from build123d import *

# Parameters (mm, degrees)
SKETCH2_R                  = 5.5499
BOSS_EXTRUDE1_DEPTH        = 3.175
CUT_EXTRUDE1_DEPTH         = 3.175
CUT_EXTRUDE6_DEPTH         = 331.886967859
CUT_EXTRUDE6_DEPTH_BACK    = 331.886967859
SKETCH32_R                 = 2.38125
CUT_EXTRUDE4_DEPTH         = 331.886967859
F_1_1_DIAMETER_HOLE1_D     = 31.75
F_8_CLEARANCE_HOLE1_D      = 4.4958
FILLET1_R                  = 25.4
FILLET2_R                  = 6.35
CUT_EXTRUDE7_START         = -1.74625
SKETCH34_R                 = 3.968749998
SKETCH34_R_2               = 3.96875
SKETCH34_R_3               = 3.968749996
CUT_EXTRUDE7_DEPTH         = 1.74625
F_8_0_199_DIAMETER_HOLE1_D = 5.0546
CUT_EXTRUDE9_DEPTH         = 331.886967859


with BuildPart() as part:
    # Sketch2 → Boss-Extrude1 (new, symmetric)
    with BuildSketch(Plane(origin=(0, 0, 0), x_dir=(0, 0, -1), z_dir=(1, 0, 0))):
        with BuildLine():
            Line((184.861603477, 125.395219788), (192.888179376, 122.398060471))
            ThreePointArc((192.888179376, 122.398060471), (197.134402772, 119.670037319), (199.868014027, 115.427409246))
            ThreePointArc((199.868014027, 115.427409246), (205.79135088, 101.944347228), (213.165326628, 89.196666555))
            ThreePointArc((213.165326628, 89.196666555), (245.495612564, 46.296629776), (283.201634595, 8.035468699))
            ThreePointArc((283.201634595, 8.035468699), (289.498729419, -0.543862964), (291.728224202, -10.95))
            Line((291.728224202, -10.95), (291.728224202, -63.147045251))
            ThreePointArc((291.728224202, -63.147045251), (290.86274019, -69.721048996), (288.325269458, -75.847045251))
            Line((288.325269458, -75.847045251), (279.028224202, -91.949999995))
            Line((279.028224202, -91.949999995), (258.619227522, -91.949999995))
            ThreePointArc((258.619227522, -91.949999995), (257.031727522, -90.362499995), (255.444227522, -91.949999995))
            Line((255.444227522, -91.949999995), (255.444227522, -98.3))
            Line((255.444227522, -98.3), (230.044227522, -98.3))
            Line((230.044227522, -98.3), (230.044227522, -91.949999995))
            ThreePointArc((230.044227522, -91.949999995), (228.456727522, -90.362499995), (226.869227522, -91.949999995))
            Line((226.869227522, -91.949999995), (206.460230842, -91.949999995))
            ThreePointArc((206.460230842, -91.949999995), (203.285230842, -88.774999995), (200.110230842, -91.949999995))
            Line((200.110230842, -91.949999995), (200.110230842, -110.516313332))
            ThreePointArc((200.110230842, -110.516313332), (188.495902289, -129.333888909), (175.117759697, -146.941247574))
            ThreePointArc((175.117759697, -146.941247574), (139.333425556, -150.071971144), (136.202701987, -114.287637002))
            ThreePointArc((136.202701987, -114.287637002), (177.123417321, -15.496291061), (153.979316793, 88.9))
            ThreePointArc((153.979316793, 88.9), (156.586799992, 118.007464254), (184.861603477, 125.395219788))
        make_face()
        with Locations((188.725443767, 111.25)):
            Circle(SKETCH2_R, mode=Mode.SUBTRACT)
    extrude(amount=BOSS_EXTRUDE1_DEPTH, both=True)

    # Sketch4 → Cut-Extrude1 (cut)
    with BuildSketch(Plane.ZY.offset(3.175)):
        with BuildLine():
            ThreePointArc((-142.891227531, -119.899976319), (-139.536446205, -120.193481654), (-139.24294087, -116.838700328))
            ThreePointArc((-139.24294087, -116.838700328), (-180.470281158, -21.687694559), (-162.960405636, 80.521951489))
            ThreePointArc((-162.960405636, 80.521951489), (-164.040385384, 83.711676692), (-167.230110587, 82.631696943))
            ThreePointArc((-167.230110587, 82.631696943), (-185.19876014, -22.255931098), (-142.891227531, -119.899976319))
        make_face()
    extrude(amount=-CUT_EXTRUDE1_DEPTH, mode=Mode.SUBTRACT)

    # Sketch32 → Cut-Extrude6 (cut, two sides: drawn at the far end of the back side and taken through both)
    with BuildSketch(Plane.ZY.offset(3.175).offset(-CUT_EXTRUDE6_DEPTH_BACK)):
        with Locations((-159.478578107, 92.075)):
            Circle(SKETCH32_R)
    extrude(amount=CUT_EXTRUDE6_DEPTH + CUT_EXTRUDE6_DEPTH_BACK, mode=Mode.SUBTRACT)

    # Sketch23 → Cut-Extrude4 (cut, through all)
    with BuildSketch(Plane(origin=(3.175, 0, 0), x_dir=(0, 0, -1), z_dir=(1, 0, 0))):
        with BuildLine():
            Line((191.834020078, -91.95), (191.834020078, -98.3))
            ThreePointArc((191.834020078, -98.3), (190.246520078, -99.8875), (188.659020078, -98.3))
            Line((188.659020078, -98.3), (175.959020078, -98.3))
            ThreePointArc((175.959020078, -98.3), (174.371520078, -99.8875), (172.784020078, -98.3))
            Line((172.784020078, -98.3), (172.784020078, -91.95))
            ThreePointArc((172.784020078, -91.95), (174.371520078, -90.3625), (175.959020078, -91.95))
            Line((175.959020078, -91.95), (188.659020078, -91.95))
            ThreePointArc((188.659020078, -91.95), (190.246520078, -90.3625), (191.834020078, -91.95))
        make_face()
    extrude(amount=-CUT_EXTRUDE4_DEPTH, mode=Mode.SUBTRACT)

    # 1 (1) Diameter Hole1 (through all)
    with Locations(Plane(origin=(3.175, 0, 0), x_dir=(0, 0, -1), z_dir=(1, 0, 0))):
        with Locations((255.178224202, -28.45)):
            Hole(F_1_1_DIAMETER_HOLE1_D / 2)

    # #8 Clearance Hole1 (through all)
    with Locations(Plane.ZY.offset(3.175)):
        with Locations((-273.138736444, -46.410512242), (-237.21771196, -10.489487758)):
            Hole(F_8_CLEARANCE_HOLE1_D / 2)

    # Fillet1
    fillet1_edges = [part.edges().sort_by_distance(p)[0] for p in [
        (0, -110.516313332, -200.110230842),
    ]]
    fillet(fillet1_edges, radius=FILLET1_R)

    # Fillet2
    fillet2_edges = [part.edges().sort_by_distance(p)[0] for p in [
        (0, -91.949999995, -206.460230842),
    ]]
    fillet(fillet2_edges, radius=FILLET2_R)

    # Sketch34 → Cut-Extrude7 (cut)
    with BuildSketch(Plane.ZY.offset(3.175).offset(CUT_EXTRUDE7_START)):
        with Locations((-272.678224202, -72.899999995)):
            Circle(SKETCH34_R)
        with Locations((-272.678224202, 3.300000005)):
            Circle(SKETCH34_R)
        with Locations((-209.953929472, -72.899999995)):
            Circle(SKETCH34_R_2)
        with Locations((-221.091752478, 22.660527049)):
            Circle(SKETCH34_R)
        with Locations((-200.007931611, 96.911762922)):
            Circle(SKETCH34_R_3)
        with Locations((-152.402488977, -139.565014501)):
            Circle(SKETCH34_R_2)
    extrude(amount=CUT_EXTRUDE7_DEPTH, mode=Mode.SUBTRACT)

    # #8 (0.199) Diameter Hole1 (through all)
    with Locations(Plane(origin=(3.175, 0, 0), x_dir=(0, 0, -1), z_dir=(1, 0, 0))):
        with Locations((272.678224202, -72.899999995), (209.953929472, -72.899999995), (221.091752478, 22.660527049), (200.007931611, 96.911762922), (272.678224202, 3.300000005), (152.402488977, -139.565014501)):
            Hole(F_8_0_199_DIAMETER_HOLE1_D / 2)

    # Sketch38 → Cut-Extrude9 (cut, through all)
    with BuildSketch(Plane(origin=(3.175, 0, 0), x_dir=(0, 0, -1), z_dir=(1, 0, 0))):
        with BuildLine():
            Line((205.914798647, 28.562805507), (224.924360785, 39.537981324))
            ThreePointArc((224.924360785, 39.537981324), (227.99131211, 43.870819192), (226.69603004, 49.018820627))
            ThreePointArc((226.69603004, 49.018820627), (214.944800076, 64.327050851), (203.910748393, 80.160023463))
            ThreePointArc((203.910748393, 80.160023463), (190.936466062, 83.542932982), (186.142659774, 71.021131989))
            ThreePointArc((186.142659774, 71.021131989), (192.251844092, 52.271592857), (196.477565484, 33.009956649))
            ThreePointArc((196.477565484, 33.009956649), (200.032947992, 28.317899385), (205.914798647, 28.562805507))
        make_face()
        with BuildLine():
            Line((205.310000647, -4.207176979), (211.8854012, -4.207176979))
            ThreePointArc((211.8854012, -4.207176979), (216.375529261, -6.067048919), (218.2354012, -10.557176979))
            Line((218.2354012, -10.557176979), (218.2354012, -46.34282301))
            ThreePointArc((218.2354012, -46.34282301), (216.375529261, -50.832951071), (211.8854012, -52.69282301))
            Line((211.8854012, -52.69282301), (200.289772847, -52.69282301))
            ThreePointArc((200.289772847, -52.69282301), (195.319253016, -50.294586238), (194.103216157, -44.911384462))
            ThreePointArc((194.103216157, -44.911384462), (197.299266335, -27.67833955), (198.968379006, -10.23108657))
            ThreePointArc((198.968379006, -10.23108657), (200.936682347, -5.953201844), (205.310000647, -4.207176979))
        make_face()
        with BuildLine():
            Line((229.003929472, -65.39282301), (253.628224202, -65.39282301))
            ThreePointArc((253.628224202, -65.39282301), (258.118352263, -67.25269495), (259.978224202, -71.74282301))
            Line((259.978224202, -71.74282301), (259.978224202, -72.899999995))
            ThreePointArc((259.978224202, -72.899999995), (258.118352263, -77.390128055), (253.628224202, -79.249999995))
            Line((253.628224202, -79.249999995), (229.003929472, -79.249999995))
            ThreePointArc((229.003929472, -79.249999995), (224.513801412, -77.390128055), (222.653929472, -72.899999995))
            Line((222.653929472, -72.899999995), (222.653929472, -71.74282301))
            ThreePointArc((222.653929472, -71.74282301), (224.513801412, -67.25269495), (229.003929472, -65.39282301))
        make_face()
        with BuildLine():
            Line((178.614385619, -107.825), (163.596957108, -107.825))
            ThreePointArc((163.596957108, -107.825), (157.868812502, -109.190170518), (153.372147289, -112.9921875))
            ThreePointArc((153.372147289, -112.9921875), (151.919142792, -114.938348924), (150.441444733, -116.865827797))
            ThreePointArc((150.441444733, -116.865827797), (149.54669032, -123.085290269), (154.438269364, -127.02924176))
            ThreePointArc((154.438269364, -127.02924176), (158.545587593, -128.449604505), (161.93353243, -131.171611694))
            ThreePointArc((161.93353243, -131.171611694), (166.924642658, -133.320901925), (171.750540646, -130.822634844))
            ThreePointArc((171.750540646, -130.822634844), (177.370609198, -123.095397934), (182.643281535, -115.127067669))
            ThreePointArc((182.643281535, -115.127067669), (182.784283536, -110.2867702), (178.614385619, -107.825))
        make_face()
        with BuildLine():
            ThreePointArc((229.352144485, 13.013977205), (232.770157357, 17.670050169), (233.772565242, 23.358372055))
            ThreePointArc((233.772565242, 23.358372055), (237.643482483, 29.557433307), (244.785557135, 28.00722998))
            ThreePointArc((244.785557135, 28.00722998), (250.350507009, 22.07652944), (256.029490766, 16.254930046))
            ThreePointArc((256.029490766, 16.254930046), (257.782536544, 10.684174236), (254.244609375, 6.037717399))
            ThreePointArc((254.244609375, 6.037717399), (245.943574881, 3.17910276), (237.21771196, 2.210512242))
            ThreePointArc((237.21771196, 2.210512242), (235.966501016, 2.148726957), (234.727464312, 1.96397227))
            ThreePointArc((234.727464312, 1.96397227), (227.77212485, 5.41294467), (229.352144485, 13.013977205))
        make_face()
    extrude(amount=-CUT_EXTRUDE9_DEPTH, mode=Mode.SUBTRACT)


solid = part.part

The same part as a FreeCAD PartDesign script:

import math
import FreeCAD as App
import Part
import Sketcher
Q = App.Units.Quantity


def edges_at(feature, points):
    """Names of the edges that pass closest to the given points."""
    edges = feature.Shape.Edges
    near = lambda p: min(range(len(edges)), key=lambda i: edges[i].distToShape(Part.Vertex(*p))[0])
    return sorted({f"Edge{near(p) + 1}" for p in points})

doc = App.newDocument("Part")
body = doc.addObject("PartDesign::Body", "Body")

# Sketch on YZ plane
sketch1 = doc.addObject("Sketcher::SketchObject", "Sketch")
body.addObject(sketch1)
sketch1.AttachmentSupport = (doc.YZ_Plane, [""])
sketch1.MapMode = "FlatFace"
sketch1.addGeometry([
    Part.LineSegment(App.Vector(122.4, -192.9, 0), App.Vector(125.4, -184.9, 0)),  # 0
    Part.ArcOfCircle(Part.Circle(App.Vector(101.6, -176, 0), App.Vector(0, 0, 1), 25.4), math.radians(-20), math.radians(120)),  # 1
    Part.ArcOfCircle(Part.Circle(App.Vector(0, 0, 0), App.Vector(0, 0, 1), 177.8), math.radians(-130), math.radians(-60)),  # 2
    Part.ArcOfCircle(Part.Circle(App.Vector(-130.6, -155.7, 0), App.Vector(0, 0, 1), 25.4), math.radians(50), math.radians(230)),  # 3
    Part.ArcOfCircle(Part.Circle(App.Vector(0, 0, 0), App.Vector(0, 0, 1), 228.6), math.radians(-130), math.radians(-118.91)),  # 4
    Part.LineSegment(App.Vector(-110.5, -200.1, 0), App.Vector(-91.9, -200.1, 0)),  # 5
    Part.ArcOfCircle(Part.Circle(App.Vector(-91.9, -203.3, 0), App.Vector(0, 0, 1), 3.2), math.radians(-90), math.radians(90)),  # 6
    Part.LineSegment(App.Vector(-91.9, -206.5, 0), App.Vector(-91.9, -226.9, 0)),  # 7
    Part.ArcOfCircle(Part.Circle(App.Vector(-91.9, -228.5, 0), App.Vector(0, 0, 1), 1.6), math.radians(-90), math.radians(90)),  # 8
    Part.LineSegment(App.Vector(-91.9, -230, 0), App.Vector(-98.3, -230, 0)),  # 9
    Part.LineSegment(App.Vector(-98.3, -230, 0), App.Vector(-98.3, -255.4, 0)),  # 10
    Part.LineSegment(App.Vector(-98.3, -255.4, 0), App.Vector(-91.9, -255.4, 0)),  # 11
    Part.ArcOfCircle(Part.Circle(App.Vector(-91.9, -257, 0), App.Vector(0, 0, 1), 1.6), math.radians(-90), math.radians(90)),  # 12
    Part.LineSegment(App.Vector(-91.9, -258.6, 0), App.Vector(-91.9, -279, 0)),  # 13
    Part.LineSegment(App.Vector(-91.9, -279, 0), App.Vector(-75.8, -288.3, 0)),  # 14
    Part.ArcOfCircle(Part.Circle(App.Vector(-63.1, -266.3, 0), App.Vector(0, 0, 1), 25.4), math.radians(-120), math.radians(-90)),  # 15
    Part.LineSegment(App.Vector(-63.1, -291.7, 0), App.Vector(-10.9, -291.7, 0)),  # 16
    Part.ArcOfCircle(Part.Circle(App.Vector(-10.9, -266.3, 0), App.Vector(0, 0, 1), 25.4), math.radians(-90), math.radians(-42)),  # 17
    Part.ArcOfCircle(Part.Circle(App.Vector(311.8, -553.2, 0), App.Vector(0, 0, 1), 406.4), math.radians(123.21), math.radians(138.37)),  # 18
    Part.ArcOfCircle(Part.Circle(App.Vector(162.2, -324.7, 0), App.Vector(0, 0, 1), 133.4), math.radians(110.55), math.radians(123.21)),  # 19
    Part.ArcOfCircle(Part.Circle(App.Vector(111.2, -188.7, 0), App.Vector(0, 0, 1), 11.9), math.radians(-69), math.radians(-20)),  # 20
    Part.Circle(App.Vector(111.2, -188.7, 0), App.Vector(0, 0, 1), 5.5),  # 21
], False)
sketch1.addConstraint([
    Sketcher.Constraint("Tangent", 0, 2, 1, 1),
    Sketcher.Constraint("Tangent", 1, 2, 2, 2),
    Sketcher.Constraint("Tangent", 2, 1, 3, 1),
    Sketcher.Constraint("Tangent", 3, 2, 4, 1),
    Sketcher.Constraint("Coincident", 4, 2, 5, 1),
    Sketcher.Constraint("Tangent", 5, 2, 6, 2),
    Sketcher.Constraint("Coincident", 6, 1, 7, 1),
    Sketcher.Constraint("Coincident", 7, 2, 8, 2),
    Sketcher.Constraint("Tangent", 8, 1, 9, 1),
    Sketcher.Constraint("Coincident", 9, 2, 10, 1),
    Sketcher.Constraint("Coincident", 10, 2, 11, 1),
    Sketcher.Constraint("Tangent", 11, 2, 12, 2),
    Sketcher.Constraint("Coincident", 12, 1, 13, 1),
    Sketcher.Constraint("Coincident", 13, 2, 14, 1),
    Sketcher.Constraint("Tangent", 14, 2, 15, 1),
    Sketcher.Constraint("Tangent", 15, 2, 16, 1),
    Sketcher.Constraint("Tangent", 16, 2, 17, 1),
    Sketcher.Constraint("Tangent", 17, 2, 18, 2),
    Sketcher.Constraint("Tangent", 18, 1, 19, 2),
    Sketcher.Constraint("Tangent", 19, 1, 20, 1),
    Sketcher.Constraint("Tangent", 20, 2, 0, 1),
    Sketcher.Constraint("Horizontal", 5),
    Sketcher.Constraint("Vertical", 7),
    Sketcher.Constraint("Horizontal", 9),
    Sketcher.Constraint("Vertical", 10),
    Sketcher.Constraint("Horizontal", 11),
    Sketcher.Constraint("Vertical", 13),
    Sketcher.Constraint("Horizontal", 16),
    Sketcher.Constraint("Coincident", 2, 3, -1, 1),
    Sketcher.Constraint("Coincident", 4, 3, -1, 1),
    Sketcher.Constraint("Coincident", 21, 3, 20, 3),
    Sketcher.Constraint("Equal", 1, 3),
    Sketcher.Constraint("Equal", 8, 12),
    Sketcher.Constraint("Equal", 3, 15),
    Sketcher.Constraint("Equal", 15, 17),
    Sketcher.Constraint("Vertical", 6, 3, 8, 3),
    Sketcher.Constraint("Vertical", 8, 3, 12, 3),
    Sketcher.Constraint("Vertical", 5, 2, 6, 1),
    Sketcher.Constraint("Vertical", 11, 2, 12, 1),
    Sketcher.Constraint("Equal", 7, 13),
    Sketcher.Constraint("Radius", 1, Q("1 in")),
    Sketcher.Constraint("Radius", 2, Q("7 in")),
    Sketcher.Constraint("Radius", 18, Q("16 in")),
    Sketcher.Constraint("DistanceY", 10, 2, 10, 1, Q("1 in")),
    Sketcher.Constraint("Radius", 19, Q("5.25 in")),
    Sketcher.Constraint("Diameter", 21, Q("0.437 in")),
    Sketcher.Constraint("DistanceX", -1, 1, 1, 3, Q("4 in")),
    Sketcher.Constraint("Angle", 14, Q("-30 deg")),
    Sketcher.Constraint("Radius", 6, Q("0.125 in")),
    Sketcher.Constraint("Radius", 8, Q("0.0625 in")),
    Sketcher.Constraint("DistanceX", 6, 3, 20, 3, Q("8 in")),
    Sketcher.Constraint("DistanceX", 9, 2, 9, 1, Q("0.25 in")),
    Sketcher.Constraint("Radius", 20, Q("0.4685 in")),
    Sketcher.Constraint("DistanceY", 13, 2, 15, 3, Q("0.5 in")),
    Sketcher.Constraint("DistanceY", 4, 2, 3, 3, Q("1.75 in")),
    Sketcher.Constraint("DistanceY", 3, 2, -1, 1, Q("6.8944 in")),
    Sketcher.Constraint("DistanceY", 18, 1, 21, 3, Q("0.9622001 in")),
    Sketcher.Constraint("DistanceX", 21, 3, 20, 2, Q("0.4389 in")),
    Sketcher.Constraint("Distance", 0, 8.567898),
    Sketcher.Constraint("DistanceX", 17, 3, -1, 1, 10.95),
    Sketcher.Constraint("DistanceY", 18, 3, -1, 1, 553.176201),
])
pad1 = doc.addObject("PartDesign::Pad", "Pad")
body.addObject(pad1)
pad1.Profile = sketch1
pad1.Length = Q("0.25 in")
pad1.Midplane = True

# Sketch on YZ plane
sketch2 = doc.addObject("Sketcher::SketchObject", "Sketch001")
body.addObject(sketch2)
sketch2.AttachmentSupport = (doc.YZ_Plane, [""])
sketch2.MapMode = "FlatFace"
sketch2.AttachmentOffset = App.Placement(App.Vector(0, 0, -0.125 * 25.4), App.Rotation())
sketch2.addGeometry([
    Part.ArcOfCircle(Part.Circle(App.Vector(-118.4, -141.1, 0), App.Vector(0, 0, 1), 2.4), math.radians(50), math.radians(230)),
    Part.ArcOfCircle(Part.Circle(App.Vector(0, 0, 0), App.Vector(0, 0, 1), 181.8), math.radians(-130), math.radians(-64)),
    Part.ArcOfCircle(Part.Circle(App.Vector(81.6, -165.1, 0), App.Vector(0, 0, 1), 2.4), math.radians(-64), math.radians(116)),
    Part.ArcOfCircle(Part.Circle(App.Vector(0, 0, 0), App.Vector(0, 0, 1), 186.5), math.radians(-130), math.radians(-64)),
], False)
sketch2.addConstraint([
    Sketcher.Constraint("Tangent", 0, 1, 1, 1),
    Sketcher.Constraint("Tangent", 1, 2, 2, 2),
    Sketcher.Constraint("Tangent", 2, 1, 3, 2),
    Sketcher.Constraint("Tangent", 3, 1, 0, 2),
    Sketcher.Constraint("Coincident", 1, 3, -1, 1),
    Sketcher.Constraint("Coincident", 3, 3, -1, 1),
    Sketcher.Constraint("Radius", 0, Q("0.09375 in")),
    Sketcher.Constraint("Radius", 1, Q("7.15625 in")),
    Sketcher.Constraint("DistanceX", 0, 1, -1, 1, 116.8387),
    Sketcher.Constraint("DistanceY", 2, 3, -1, 1, 165.095258),
])
pocket1 = doc.addObject("PartDesign::Pocket", "Pocket")
body.addObject(pocket1)
pocket1.Profile = sketch2
pocket1.Length = Q("0.125 in")
pocket1.Reversed = True

# Sketch on YZ plane
sketch3 = doc.addObject("Sketcher::SketchObject", "Sketch002")
body.addObject(sketch3)
sketch3.AttachmentSupport = (doc.YZ_Plane, [""])
sketch3.MapMode = "FlatFace"
sketch3.AttachmentOffset = App.Placement(App.Vector(0, 0, -0.125 * 25.4), App.Rotation())
sketch3.addGeometry(Part.Circle(App.Vector(92.1, -159.5, 0), App.Vector(0, 0, 1), 2.4), False)
sketch3.addConstraint([
    Sketcher.Constraint("Diameter", 0, Q("0.1875 in")),
    Sketcher.Constraint("DistanceX", -1, 1, 0, 3, Q("3.625 in")),
    Sketcher.Constraint("DistanceY", 0, 3, -1, 1, 159.478578),
])
pocket2 = doc.addObject("PartDesign::Pocket", "Pocket001")
body.addObject(pocket2)
pocket2.Profile = sketch3
pocket2.Type = "ThroughAll"
pocket2.Midplane = True

# Sketch on YZ plane
sketch4 = doc.addObject("Sketcher::SketchObject", "Sketch003")
body.addObject(sketch4)
sketch4.AttachmentSupport = (doc.YZ_Plane, [""])
sketch4.MapMode = "FlatFace"
sketch4.AttachmentOffset = App.Placement(App.Vector(0, 0, 0.125 * 25.4), App.Rotation())
sketch4.addGeometry([
    Part.LineSegment(App.Vector(-98.3, -191.8, 0), App.Vector(-92, -191.8, 0)),  # 0
    Part.ArcOfCircle(Part.Circle(App.Vector(-92, -190.2, 0), App.Vector(0, 0, 1), 1.6), math.radians(-90), math.radians(90)),  # 1
    Part.LineSegment(App.Vector(-92, -188.7, 0), App.Vector(-92, -176, 0)),  # 2
    Part.ArcOfCircle(Part.Circle(App.Vector(-92, -174.4, 0), App.Vector(0, 0, 1), 1.6), math.radians(-90), math.radians(90)),  # 3
    Part.LineSegment(App.Vector(-92, -172.8, 0), App.Vector(-98.3, -172.8, 0)),  # 4
    Part.ArcOfCircle(Part.Circle(App.Vector(-98.3, -174.4, 0), App.Vector(0, 0, 1), 1.6), math.radians(90), math.radians(270)),  # 5
    Part.LineSegment(App.Vector(-98.3, -176, 0), App.Vector(-98.3, -188.7, 0)),  # 6
    Part.ArcOfCircle(Part.Circle(App.Vector(-98.3, -190.2, 0), App.Vector(0, 0, 1), 1.6), math.radians(90), math.radians(270)),  # 7
], False)
sketch4.addConstraint([
    Sketcher.Constraint("Tangent", 0, 2, 1, 1),
    Sketcher.Constraint("Coincident", 1, 2, 2, 1),
    Sketcher.Constraint("Coincident", 2, 2, 3, 1),
    Sketcher.Constraint("Tangent", 3, 2, 4, 1),
    Sketcher.Constraint("Tangent", 4, 2, 5, 1),
    Sketcher.Constraint("Coincident", 5, 2, 6, 1),
    Sketcher.Constraint("Coincident", 6, 2, 7, 1),
    Sketcher.Constraint("Tangent", 7, 2, 0, 1),
    Sketcher.Constraint("Horizontal", 0),
    Sketcher.Constraint("Vertical", 2),
    Sketcher.Constraint("Horizontal", 4),
    Sketcher.Constraint("Vertical", 6),
    Sketcher.Constraint("Equal", 1, 3),
    Sketcher.Constraint("Equal", 3, 5),
    Sketcher.Constraint("Equal", 5, 7),
    Sketcher.Constraint("Vertical", 1, 3, 3, 3),
    Sketcher.Constraint("Vertical", 5, 3, 7, 3),
    Sketcher.Constraint("Vertical", 0, 2, 1, 2),
    Sketcher.Constraint("Vertical", 4, 2, 5, 2),
    Sketcher.Constraint("DistanceY", 2, 1, 2, 2, Q("0.5 in")),
    Sketcher.Constraint("Radius", 1, Q("0.0625 in")),
    Sketcher.Constraint("DistanceX", 0, 1, 0, 2, Q("0.25 in")),
    Sketcher.Constraint("DistanceX", 1, 3, -1, 1, 91.95),
    Sketcher.Constraint("DistanceY", 1, 3, -1, 1, 190.24652),
])
pocket3 = doc.addObject("PartDesign::Pocket", "Pocket002")
body.addObject(pocket3)
pocket3.Profile = sketch4
pocket3.Type = "ThroughAll"

# Sketch on YZ plane
sketch5 = doc.addObject("Sketcher::SketchObject", "Sketch004")
body.addObject(sketch5)
sketch5.AttachmentSupport = (doc.YZ_Plane, [""])
sketch5.MapMode = "FlatFace"
sketch5.AttachmentOffset = App.Placement(App.Vector(0, 0, 0.125 * 25.4), App.Rotation())
sketch5.addGeometry(Part.Circle(App.Vector(-28, -255, 0), App.Vector(0, 0, 1), 16), False)
sketch5.addConstraint([
    Sketcher.Constraint("Diameter", 0, Q("1.25 in")),
    Sketcher.Constraint("DistanceX", 0, 3, -1, 1, 28.45),
    Sketcher.Constraint("DistanceY", 0, 3, -1, 1, 255.178224),
])
doc.recompute()
hole = doc.addObject("PartDesign::Hole", "Hole")
body.addObject(hole)
hole.Profile = sketch5
hole.ThreadType = "None"
hole.Diameter = Q("1.25 in")
hole.DepthType = "ThroughAll"

# Sketch on YZ plane
sketch6 = doc.addObject("Sketcher::SketchObject", "Sketch005")
body.addObject(sketch6)
sketch6.AttachmentSupport = (doc.YZ_Plane, [""])
sketch6.MapMode = "FlatFace"
sketch6.AttachmentOffset = App.Placement(App.Vector(0, 0, -0.125 * 25.4), App.Rotation())
sketch6.addGeometry([
    Part.Circle(App.Vector(-46.4, -273.1, 0), App.Vector(0, 0, 1), 2.2),
    Part.Circle(App.Vector(-10.5, -237.2, 0), App.Vector(0, 0, 1), 2.2),
], False)
sketch6.addConstraint([
    Sketcher.Constraint("Equal", 0, 1),
    Sketcher.Constraint("Diameter", 0, Q("0.177 in")),
    Sketcher.Constraint("DistanceY", 1, 3, -1, 1, 237.217712),
    Sketcher.Constraint("DistanceX", 0, 3, -1, 1, 46.410512),
    Sketcher.Constraint("DistanceY", 0, 3, -1, 1, 273.138736),
    Sketcher.Constraint("DistanceX", 1, 3, -1, 1, 10.489488),
])
doc.recompute()
hole2 = doc.addObject("PartDesign::Hole", "Hole001")
body.addObject(hole2)
hole2.Profile = sketch6
hole2.ThreadType = "None"
hole2.Diameter = Q("0.177 in")
hole2.DepthType = "ThroughAll"
hole2.Reversed = True
doc.recompute()

fillet = doc.addObject("PartDesign::Fillet", "Fillet")
body.addObject(fillet)
fillet.Base = (hole2, edges_at(hole2, [(0, -110.516, -200.11)]))
fillet.Radius = Q("1 in")
doc.recompute()

fillet2 = doc.addObject("PartDesign::Fillet", "Fillet001")
body.addObject(fillet2)
fillet2.Base = (fillet, edges_at(fillet, [(0, -91.95, -206.46)]))
fillet2.Radius = Q("0.25 in")

# Sketch on YZ plane
sketch7 = doc.addObject("Sketcher::SketchObject", "Sketch006")
body.addObject(sketch7)
sketch7.AttachmentSupport = (doc.YZ_Plane, [""])
sketch7.MapMode = "FlatFace"
sketch7.AttachmentOffset = App.Placement(App.Vector(0, 0, -1.42875), App.Rotation())
sketch7.addGeometry([
    Part.Circle(App.Vector(-72.9, -272.7, 0), App.Vector(0, 0, 1), 4),  # 0
    Part.Circle(App.Vector(3.3, -272.7, 0), App.Vector(0, 0, 1), 4),  # 1
    Part.Circle(App.Vector(-72.9, -210, 0), App.Vector(0, 0, 1), 4),  # 2
    Part.Circle(App.Vector(22.7, -221.1, 0), App.Vector(0, 0, 1), 4),  # 3
    Part.Circle(App.Vector(96.9, -200, 0), App.Vector(0, 0, 1), 4),  # 4
    Part.Circle(App.Vector(-139.6, -152.4, 0), App.Vector(0, 0, 1), 4),  # 5
], False)
sketch7.addConstraint([
    Sketcher.Constraint("Equal", 0, 1),
    Sketcher.Constraint("Equal", 1, 2),
    Sketcher.Constraint("Equal", 2, 3),
    Sketcher.Constraint("Equal", 3, 4),
    Sketcher.Constraint("Equal", 4, 5),
    Sketcher.Constraint("Horizontal", 0, 3, 1, 3),
    Sketcher.Constraint("Vertical", 0, 3, 2, 3),
    Sketcher.Constraint("Diameter", 0, Q("0.3125 in")),
    Sketcher.Constraint("DistanceX", 0, 3, 1, 3, Q("3 in")),
    Sketcher.Constraint("DistanceX", 0, 3, -1, 1, 72.9),
    Sketcher.Constraint("DistanceY", 2, 3, -1, 1, 209.953929),
    Sketcher.Constraint("DistanceY", 4, 3, -1, 1, 200.007932),
    Sketcher.Constraint("DistanceY", 5, 3, -1, 1, 152.402489),
    Sketcher.Constraint("DistanceY", 1, 3, 3, 3, 51.586472),
    Sketcher.Constraint("DistanceY", 3, 3, 4, 3, 21.083821),
    Sketcher.Constraint("DistanceX", 5, 3, 3, 3, 162.225542),
    Sketcher.Constraint("DistanceX", -1, 1, 3, 3, 22.660527),
    Sketcher.Constraint("DistanceX", -1, 1, 4, 3, 96.911763),
])
pocket4 = doc.addObject("PartDesign::Pocket", "Pocket003")
body.addObject(pocket4)
pocket4.Profile = sketch7
pocket4.Length = 1.74625

# Sketch on YZ plane
sketch8 = doc.addObject("Sketcher::SketchObject", "Sketch007")
body.addObject(sketch8)
sketch8.AttachmentSupport = (doc.YZ_Plane, [""])
sketch8.MapMode = "FlatFace"
sketch8.AttachmentOffset = App.Placement(App.Vector(0, 0, 0.125 * 25.4), App.Rotation())
sketch8.addGeometry([
    Part.Circle(App.Vector(-72.9, -272.7, 0), App.Vector(0, 0, 1), 2.5),  # 0
    Part.Circle(App.Vector(-72.9, -210, 0), App.Vector(0, 0, 1), 2.5),  # 1
    Part.Circle(App.Vector(22.7, -221.1, 0), App.Vector(0, 0, 1), 2.5),  # 2
    Part.Circle(App.Vector(96.9, -200, 0), App.Vector(0, 0, 1), 2.5),  # 3
    Part.Circle(App.Vector(3.3, -272.7, 0), App.Vector(0, 0, 1), 2.5),  # 4
    Part.Circle(App.Vector(-139.6, -152.4, 0), App.Vector(0, 0, 1), 2.5),  # 5
], False)
sketch8.addConstraint([
    Sketcher.Constraint("Equal", 0, 1),
    Sketcher.Constraint("Equal", 1, 2),
    Sketcher.Constraint("Equal", 2, 3),
    Sketcher.Constraint("Equal", 3, 4),
    Sketcher.Constraint("Equal", 4, 5),
    Sketcher.Constraint("Horizontal", 0, 3, 4, 3),
    Sketcher.Constraint("Vertical", 0, 3, 1, 3),
    Sketcher.Constraint("Diameter", 0, Q("0.199 in")),
    Sketcher.Constraint("DistanceX", 0, 3, 4, 3, Q("3 in")),
    Sketcher.Constraint("DistanceX", 0, 3, -1, 1, 72.9),
    Sketcher.Constraint("DistanceY", 1, 3, -1, 1, 209.953929),
    Sketcher.Constraint("DistanceY", 3, 3, -1, 1, 200.007932),
    Sketcher.Constraint("DistanceY", 5, 3, -1, 1, 152.402489),
    Sketcher.Constraint("DistanceY", 0, 3, 2, 3, 51.586472),
    Sketcher.Constraint("DistanceY", 2, 3, 3, 3, 21.083821),
    Sketcher.Constraint("DistanceX", 5, 3, 2, 3, 162.225542),
    Sketcher.Constraint("DistanceX", -1, 1, 2, 3, 22.660527),
    Sketcher.Constraint("DistanceX", -1, 1, 3, 3, 96.911763),
])
doc.recompute()
hole3 = doc.addObject("PartDesign::Hole", "Hole002")
body.addObject(hole3)
hole3.Profile = sketch8
hole3.ThreadType = "None"
hole3.Diameter = Q("0.199 in")
hole3.DepthType = "ThroughAll"

# Sketch on YZ plane
sketch9 = doc.addObject("Sketcher::SketchObject", "Sketch008")
body.addObject(sketch9)
sketch9.AttachmentSupport = (doc.YZ_Plane, [""])
sketch9.MapMode = "FlatFace"
sketch9.AttachmentOffset = App.Placement(App.Vector(0, 0, 0.125 * 25.4), App.Rotation())
sketch9.addGeometry([
    Part.LineSegment(App.Vector(28.6, -205.9, 0), App.Vector(39.5, -224.9, 0)),  # 0
    Part.ArcOfCircle(Part.Circle(App.Vector(45, -221.7, 0), App.Vector(0, 0, 1), 6.3), math.radians(-150), math.radians(-51)),  # 1
    Part.ArcOfCircle(Part.Circle(App.Vector(311.8, -553.2, 0), App.Vector(0, 0, 1), 419.1), math.radians(123.55), math.radians(128.83)),  # 2
    Part.ArcOfCircle(Part.Circle(App.Vector(74.6, -195.5, 0), App.Vector(0, 0, 1), 10.1), math.radians(-56), math.radians(111)),  # 3
    Part.ArcOfCircle(Part.Circle(App.Vector(0, 0, 0), App.Vector(0, 0, 1), 199.2), math.radians(-80.46), math.radians(-69.12)),  # 4
    Part.ArcOfCircle(Part.Circle(App.Vector(34.1, -202.7, 0), App.Vector(0, 0, 1), 6.3), math.radians(100), math.radians(210)),  # 5
    Part.LineSegment(App.Vector(-4.2, -211.9, 0), App.Vector(-4.2, -205.3, 0)),  # 6
    Part.ArcOfCircle(Part.Circle(App.Vector(-10.6, -205.3, 0), App.Vector(0, 0, 1), 6.3), math.radians(0), math.radians(87)),  # 7
    Part.ArcOfCircle(Part.Circle(App.Vector(0, 0, 0), App.Vector(0, 0, 1), 199.2), math.radians(-103.03), math.radians(-92.94)),  # 8
    Part.ArcOfCircle(Part.Circle(App.Vector(-46.3, -200.3, 0), App.Vector(0, 0, 1), 6.3), math.radians(77), math.radians(180)),  # 9
    Part.LineSegment(App.Vector(-52.7, -200.3, 0), App.Vector(-52.7, -211.9, 0)),  # 10
    Part.ArcOfCircle(Part.Circle(App.Vector(-46.3, -211.9, 0), App.Vector(0, 0, 1), 6.3), math.radians(180), math.radians(270)),  # 11
    Part.LineSegment(App.Vector(-46.3, -218.2, 0), App.Vector(-10.6, -218.2, 0)),  # 12
    Part.ArcOfCircle(Part.Circle(App.Vector(-10.6, -211.9, 0), App.Vector(0, 0, 1), 6.3), math.radians(-90), math.radians(0)),  # 13
    Part.LineSegment(App.Vector(-65.4, -253.6, 0), App.Vector(-65.4, -229, 0)),  # 14
    Part.ArcOfCircle(Part.Circle(App.Vector(-71.7, -229, 0), App.Vector(0, 0, 1), 6.4), math.radians(0), math.radians(90)),  # 15
    Part.LineSegment(App.Vector(-71.7, -222.7, 0), App.Vector(-72.9, -222.7, 0)),  # 16
    Part.ArcOfCircle(Part.Circle(App.Vector(-72.9, -229, 0), App.Vector(0, 0, 1), 6.4), math.radians(90), math.radians(180)),  # 17
    Part.LineSegment(App.Vector(-79.2, -229, 0), App.Vector(-79.2, -253.6, 0)),  # 18
    Part.ArcOfCircle(Part.Circle(App.Vector(-72.9, -253.6, 0), App.Vector(0, 0, 1), 6.3), math.radians(180), math.radians(270)),  # 19
    Part.LineSegment(App.Vector(-72.9, -260, 0), App.Vector(-71.7, -260, 0)),  # 20
    Part.ArcOfCircle(Part.Circle(App.Vector(-71.7, -253.6, 0), App.Vector(0, 0, 1), 6.3), math.radians(-90), math.radians(0)),  # 21
    Part.LineSegment(App.Vector(-107.8, -178.6, 0), App.Vector(-107.8, -163.6, 0)),  # 22
    Part.ArcOfCircle(Part.Circle(App.Vector(-120.5, -163.6, 0), App.Vector(0, 0, 1), 12.7), math.radians(0), math.radians(54)),  # 23
    Part.ArcOfCircle(Part.Circle(App.Vector(0, 0, 0), App.Vector(0, 0, 1), 190.5), math.radians(-127.84), math.radians(-126.38)),  # 24
    Part.ArcOfCircle(Part.Circle(App.Vector(-120.8, -155.5, 0), App.Vector(0, 0, 1), 6.3), math.radians(52), math.radians(171)),  # 25
    Part.ArcOfCircle(Part.Circle(App.Vector(-139.6, -152.4, 0), App.Vector(0, 0, 1), 12.7), math.radians(-49), math.radians(-9)),  # 26
    Part.ArcOfCircle(Part.Circle(App.Vector(-127, -166.7, 0), App.Vector(0, 0, 1), 6.3), math.radians(131), math.radians(233)),  # 27
    Part.ArcOfCircle(Part.Circle(App.Vector(0, 0, 0), App.Vector(0, 0, 1), 215.9), math.radians(-127.3), math.radians(-122.22)),  # 28
    Part.ArcOfCircle(Part.Circle(App.Vector(-112.6, -178.6, 0), App.Vector(0, 0, 1), 4.8), math.radians(-122), math.radians(0)),  # 29
    Part.ArcOfCircle(Part.Circle(App.Vector(22.7, -221.1, 0), App.Vector(0, 0, 1), 12.7), math.radians(-139), math.radians(-87)),  # 30
    Part.ArcOfCircle(Part.Circle(App.Vector(8.2, -233.5, 0), App.Vector(0, 0, 1), 6.3), math.radians(41), math.radians(191)),  # 31
    Part.ArcOfCircle(Part.Circle(App.Vector(-10.5, -237.2, 0), App.Vector(0, 0, 1), 12.7), math.radians(0), math.radians(11.31)),  # 32
    Part.ArcOfCircle(Part.Circle(App.Vector(42, -237.2, 0), App.Vector(0, 0, 1), 39.8), math.radians(180), math.radians(205)),  # 33
    Part.ArcOfCircle(Part.Circle(App.Vector(11.8, -251.5, 0), App.Vector(0, 0, 1), 6.3), math.radians(-155), math.radians(-45)),  # 34
    Part.ArcOfCircle(Part.Circle(App.Vector(311.8, -553.2, 0), App.Vector(0, 0, 1), 419.1), math.radians(132.62), math.radians(134.85)),  # 35
    Part.ArcOfCircle(Part.Circle(App.Vector(23.7, -240.1, 0), App.Vector(0, 0, 1), 6.3), math.radians(-47), math.radians(93)),  # 36
], False)
sketch9.addConstraint([
    Sketcher.Constraint("Tangent", 0, 2, 1, 1),
    Sketcher.Constraint("Tangent", 1, 2, 2, 2),
    Sketcher.Constraint("Tangent", 2, 1, 3, 1),
    Sketcher.Constraint("Tangent", 3, 2, 4, 2),
    Sketcher.Constraint("Tangent", 4, 1, 5, 1),
    Sketcher.Constraint("Tangent", 5, 2, 0, 1),
    Sketcher.Constraint("Tangent", 6, 2, 7, 1),
    Sketcher.Constraint("Tangent", 7, 2, 8, 2),
    Sketcher.Constraint("Tangent", 8, 1, 9, 1),
    Sketcher.Constraint("Tangent", 9, 2, 10, 1),
    Sketcher.Constraint("Tangent", 10, 2, 11, 1),
    Sketcher.Constraint("Tangent", 11, 2, 12, 1),
    Sketcher.Constraint("Tangent", 12, 2, 13, 1),
    Sketcher.Constraint("Tangent", 13, 2, 6, 1),
    Sketcher.Constraint("Tangent", 14, 2, 15, 1),
    Sketcher.Constraint("Tangent", 15, 2, 16, 1),
    Sketcher.Constraint("Tangent", 16, 2, 17, 1),
    Sketcher.Constraint("Tangent", 17, 2, 18, 1),
    Sketcher.Constraint("Tangent", 18, 2, 19, 1),
    Sketcher.Constraint("Tangent", 19, 2, 20, 1),
    Sketcher.Constraint("Tangent", 20, 2, 21, 1),
    Sketcher.Constraint("Tangent", 21, 2, 14, 1),
    Sketcher.Constraint("Tangent", 22, 2, 23, 1),
    Sketcher.Constraint("Tangent", 23, 2, 24, 2),
    Sketcher.Constraint("Tangent", 24, 1, 25, 1),
    Sketcher.Constraint("Tangent", 25, 2, 26, 2),
    Sketcher.Constraint("Tangent", 26, 1, 27, 1),
    Sketcher.Constraint("Tangent", 27, 2, 28, 1),
    Sketcher.Constraint("Tangent", 28, 2, 29, 1),
    Sketcher.Constraint("Tangent", 29, 2, 22, 1),
    Sketcher.Constraint("Tangent", 30, 1, 31, 1),
    Sketcher.Constraint("Tangent", 31, 2, 32, 2),
    Sketcher.Constraint("Tangent", 32, 1, 33, 1),
    Sketcher.Constraint("Tangent", 33, 2, 34, 1),
    Sketcher.Constraint("Tangent", 34, 2, 35, 2),
    Sketcher.Constraint("Tangent", 35, 1, 36, 1),
    Sketcher.Constraint("Tangent", 36, 2, 30, 2),
    Sketcher.Constraint("Vertical", 6),
    Sketcher.Constraint("Vertical", 10),
    Sketcher.Constraint("Horizontal", 12),
    Sketcher.Constraint("Vertical", 14),
    Sketcher.Constraint("Horizontal", 16),
    Sketcher.Constraint("Vertical", 18),
    Sketcher.Constraint("Horizontal", 20),
    Sketcher.Constraint("Vertical", 22),
    Sketcher.Constraint("Coincident", 4, 3, -1, 1),
    Sketcher.Constraint("Coincident", 8, 3, -1, 1),
    Sketcher.Constraint("Coincident", 24, 3, -1, 1),
    Sketcher.Constraint("Coincident", 28, 3, -1, 1),
    Sketcher.Constraint("Coincident", 35, 3, 2, 3),
    Sketcher.Constraint("Equal", 1, 5),
    Sketcher.Constraint("Equal", 5, 7),
    Sketcher.Constraint("Equal", 4, 8),
    Sketcher.Constraint("Equal", 7, 9),
    Sketcher.Constraint("Equal", 9, 11),
    Sketcher.Constraint("Equal", 11, 13),
    Sketcher.Constraint("Equal", 13, 15),
    Sketcher.Constraint("Equal", 15, 17),
    Sketcher.Constraint("Equal", 17, 19),
    Sketcher.Constraint("Equal", 19, 21),
    Sketcher.Constraint("Equal", 21, 25),
    Sketcher.Constraint("Equal", 23, 26),
    Sketcher.Constraint("Equal", 25, 27),
    Sketcher.Constraint("Equal", 26, 30),
    Sketcher.Constraint("Equal", 27, 31),
    Sketcher.Constraint("Equal", 30, 32),
    Sketcher.Constraint("Equal", 31, 34),
    Sketcher.Constraint("Equal", 2, 35),
    Sketcher.Constraint("Equal", 34, 36),
    Sketcher.Constraint("Horizontal", 32, 3, 33, 3),
    Sketcher.Constraint("Radius", 2, Q("16.5 in")),
    Sketcher.Constraint("Radius", 23, Q("0.5 in")),
    Sketcher.Constraint("Radius", 24, Q("7.5 in")),
    Sketcher.Constraint("Radius", 28, Q("8.5 in")),
    Sketcher.Constraint("Radius", 1, Q("0.25 in")),
    Sketcher.Constraint("Angle", 0, Q("-60 deg")),
    Sketcher.Constraint("Radius", 4, Q("7.84375 in")),
    Sketcher.Constraint("Radius", 29, Q("0.1875 in")),
    Sketcher.Constraint("DistanceY", 6, 1, 6, 2, 6.575401),
    Sketcher.Constraint("Radius", 3, 10.051673),
    Sketcher.Constraint("Radius", 33, 39.789183),
    Sketcher.Constraint("DistanceY", 10, 2, 10, 1, 11.595628),
    Sketcher.Constraint("DistanceY", 22, 1, 22, 2, 15.017429),
    Sketcher.Constraint("DistanceY", 2, 3, -1, 1, 553.176201),
    Sketcher.Constraint("DistanceY", 5, 3, -1, 1, 202.739799),
    Sketcher.Constraint("DistanceY", 7, 3, -1, 1, 205.310001),
    Sketcher.Constraint("DistanceX", 17, 3, -1, 1, 72.9),
    Sketcher.Constraint("Distance", 0, 21.950352),
    Sketcher.Constraint("DistanceX", 16, 2, 16, 1, 1.157177),
    Sketcher.Constraint("DistanceY", 14, 1, 14, 2, 24.624295),
    Sketcher.Constraint("DistanceY", 15, 3, -1, 1, 229.003929),
    Sketcher.Constraint("DistanceY", 25, 3, -1, 1, 155.45616),
    Sketcher.Constraint("DistanceY", 26, 3, -1, 1, 152.402489),
    Sketcher.Constraint("DistanceY", 31, 3, -1, 1, 233.48234),
    Sketcher.Constraint("DistanceY", 32, 3, -1, 1, 237.217712),
    Sketcher.Constraint("DistanceX", -1, 1, 34, 3, 11.776929),
    Sketcher.Constraint("DistanceY", 36, 3, -1, 1, 240.112972),
])
pocket5 = doc.addObject("PartDesign::Pocket", "Pocket004")
body.addObject(pocket5)
pocket5.Profile = sketch9
pocket5.Type = "ThroughAll"

doc.recompute()
